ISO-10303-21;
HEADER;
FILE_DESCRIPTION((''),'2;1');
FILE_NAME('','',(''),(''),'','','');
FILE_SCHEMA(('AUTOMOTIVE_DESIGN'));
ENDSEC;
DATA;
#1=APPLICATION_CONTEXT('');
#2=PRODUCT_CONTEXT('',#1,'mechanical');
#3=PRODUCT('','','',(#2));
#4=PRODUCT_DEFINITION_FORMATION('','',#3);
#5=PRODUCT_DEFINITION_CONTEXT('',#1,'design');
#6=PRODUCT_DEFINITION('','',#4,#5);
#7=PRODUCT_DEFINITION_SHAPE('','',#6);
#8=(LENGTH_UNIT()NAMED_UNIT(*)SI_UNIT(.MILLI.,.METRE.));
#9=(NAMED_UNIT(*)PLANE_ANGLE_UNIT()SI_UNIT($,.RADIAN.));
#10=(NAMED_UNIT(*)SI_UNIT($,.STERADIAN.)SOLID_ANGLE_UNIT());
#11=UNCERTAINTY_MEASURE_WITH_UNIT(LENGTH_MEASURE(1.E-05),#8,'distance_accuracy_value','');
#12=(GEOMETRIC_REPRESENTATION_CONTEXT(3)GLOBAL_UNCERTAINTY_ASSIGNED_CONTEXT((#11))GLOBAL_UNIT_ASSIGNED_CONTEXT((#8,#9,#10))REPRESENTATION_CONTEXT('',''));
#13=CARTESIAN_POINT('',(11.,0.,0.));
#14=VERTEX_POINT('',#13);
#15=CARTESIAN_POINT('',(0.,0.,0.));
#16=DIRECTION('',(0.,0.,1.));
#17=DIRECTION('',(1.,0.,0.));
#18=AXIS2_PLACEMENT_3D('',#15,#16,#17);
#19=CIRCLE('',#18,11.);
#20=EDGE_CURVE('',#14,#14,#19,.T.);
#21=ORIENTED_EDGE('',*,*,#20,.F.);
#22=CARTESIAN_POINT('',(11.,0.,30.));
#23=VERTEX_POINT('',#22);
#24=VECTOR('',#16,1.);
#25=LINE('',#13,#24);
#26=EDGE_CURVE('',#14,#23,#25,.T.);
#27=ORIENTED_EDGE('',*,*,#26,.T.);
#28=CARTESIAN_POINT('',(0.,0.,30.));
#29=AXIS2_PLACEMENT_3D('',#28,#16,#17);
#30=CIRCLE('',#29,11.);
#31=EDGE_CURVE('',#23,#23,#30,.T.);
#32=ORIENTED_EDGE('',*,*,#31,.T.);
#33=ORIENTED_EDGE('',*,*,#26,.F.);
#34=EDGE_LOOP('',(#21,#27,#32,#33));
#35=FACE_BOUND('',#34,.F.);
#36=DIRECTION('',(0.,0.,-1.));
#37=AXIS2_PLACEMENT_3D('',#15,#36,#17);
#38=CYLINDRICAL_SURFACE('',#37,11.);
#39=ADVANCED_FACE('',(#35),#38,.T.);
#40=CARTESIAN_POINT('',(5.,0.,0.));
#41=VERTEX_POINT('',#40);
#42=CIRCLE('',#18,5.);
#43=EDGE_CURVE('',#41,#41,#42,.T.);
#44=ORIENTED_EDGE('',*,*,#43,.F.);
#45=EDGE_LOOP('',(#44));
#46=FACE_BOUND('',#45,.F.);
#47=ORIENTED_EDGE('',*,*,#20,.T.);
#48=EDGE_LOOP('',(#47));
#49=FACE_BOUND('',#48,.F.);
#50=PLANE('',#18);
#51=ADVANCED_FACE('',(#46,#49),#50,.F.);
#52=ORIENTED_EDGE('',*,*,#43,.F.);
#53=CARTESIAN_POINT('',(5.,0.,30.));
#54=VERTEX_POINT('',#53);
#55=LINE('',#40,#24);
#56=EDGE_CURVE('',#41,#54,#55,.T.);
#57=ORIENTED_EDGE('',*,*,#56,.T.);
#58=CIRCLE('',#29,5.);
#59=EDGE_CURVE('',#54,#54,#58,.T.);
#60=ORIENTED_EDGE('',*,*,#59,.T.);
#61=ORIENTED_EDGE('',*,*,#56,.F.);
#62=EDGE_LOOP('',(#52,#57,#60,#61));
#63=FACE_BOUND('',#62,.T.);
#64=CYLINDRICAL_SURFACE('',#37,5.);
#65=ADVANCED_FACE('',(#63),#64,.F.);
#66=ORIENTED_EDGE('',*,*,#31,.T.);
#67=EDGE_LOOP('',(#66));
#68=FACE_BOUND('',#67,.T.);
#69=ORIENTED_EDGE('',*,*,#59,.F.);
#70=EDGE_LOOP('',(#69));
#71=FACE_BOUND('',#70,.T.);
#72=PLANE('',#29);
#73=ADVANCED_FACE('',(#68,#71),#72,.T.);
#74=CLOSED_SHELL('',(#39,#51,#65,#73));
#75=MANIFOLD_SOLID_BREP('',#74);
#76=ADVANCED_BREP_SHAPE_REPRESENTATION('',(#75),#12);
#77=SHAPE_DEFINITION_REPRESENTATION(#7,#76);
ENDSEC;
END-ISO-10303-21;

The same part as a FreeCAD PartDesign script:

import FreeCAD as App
import Part
import Sketcher
from FreeCAD import Vector
Q = App.Units.Quantity

doc = App.newDocument("Part")
body = doc.addObject("PartDesign::Body", "Body")

# Sketch on XY plane
sketch1 = body.newObject("Sketcher::SketchObject", "Sketch")
sketch1.AttachmentSupport = (doc.getObject("XY_Plane"), [""])
sketch1.MapMode = "FlatFace"
sketch1.addGeometry(Part.Circle(Vector(0, 0, 0), Vector(0, 0, 1), 11), False)
sketch1.addGeometry(Part.Circle(Vector(0, 0, 0), Vector(0, 0, 1), 5), False)
sketch1.addConstraint(Sketcher.Constraint("Coincident", 0, 3, -1, 1))
sketch1.addConstraint(Sketcher.Constraint("Coincident", 1, 3, -1, 1))
sketch1.addConstraint(Sketcher.Constraint("Diameter", 0, Q("22 mm")))
sketch1.addConstraint(Sketcher.Constraint("Diameter", 1, Q("10 mm")))
pad1 = body.newObject("PartDesign::Pad", "Pad")
pad1.Profile = sketch1
pad1.Length = 30

doc.recompute()
